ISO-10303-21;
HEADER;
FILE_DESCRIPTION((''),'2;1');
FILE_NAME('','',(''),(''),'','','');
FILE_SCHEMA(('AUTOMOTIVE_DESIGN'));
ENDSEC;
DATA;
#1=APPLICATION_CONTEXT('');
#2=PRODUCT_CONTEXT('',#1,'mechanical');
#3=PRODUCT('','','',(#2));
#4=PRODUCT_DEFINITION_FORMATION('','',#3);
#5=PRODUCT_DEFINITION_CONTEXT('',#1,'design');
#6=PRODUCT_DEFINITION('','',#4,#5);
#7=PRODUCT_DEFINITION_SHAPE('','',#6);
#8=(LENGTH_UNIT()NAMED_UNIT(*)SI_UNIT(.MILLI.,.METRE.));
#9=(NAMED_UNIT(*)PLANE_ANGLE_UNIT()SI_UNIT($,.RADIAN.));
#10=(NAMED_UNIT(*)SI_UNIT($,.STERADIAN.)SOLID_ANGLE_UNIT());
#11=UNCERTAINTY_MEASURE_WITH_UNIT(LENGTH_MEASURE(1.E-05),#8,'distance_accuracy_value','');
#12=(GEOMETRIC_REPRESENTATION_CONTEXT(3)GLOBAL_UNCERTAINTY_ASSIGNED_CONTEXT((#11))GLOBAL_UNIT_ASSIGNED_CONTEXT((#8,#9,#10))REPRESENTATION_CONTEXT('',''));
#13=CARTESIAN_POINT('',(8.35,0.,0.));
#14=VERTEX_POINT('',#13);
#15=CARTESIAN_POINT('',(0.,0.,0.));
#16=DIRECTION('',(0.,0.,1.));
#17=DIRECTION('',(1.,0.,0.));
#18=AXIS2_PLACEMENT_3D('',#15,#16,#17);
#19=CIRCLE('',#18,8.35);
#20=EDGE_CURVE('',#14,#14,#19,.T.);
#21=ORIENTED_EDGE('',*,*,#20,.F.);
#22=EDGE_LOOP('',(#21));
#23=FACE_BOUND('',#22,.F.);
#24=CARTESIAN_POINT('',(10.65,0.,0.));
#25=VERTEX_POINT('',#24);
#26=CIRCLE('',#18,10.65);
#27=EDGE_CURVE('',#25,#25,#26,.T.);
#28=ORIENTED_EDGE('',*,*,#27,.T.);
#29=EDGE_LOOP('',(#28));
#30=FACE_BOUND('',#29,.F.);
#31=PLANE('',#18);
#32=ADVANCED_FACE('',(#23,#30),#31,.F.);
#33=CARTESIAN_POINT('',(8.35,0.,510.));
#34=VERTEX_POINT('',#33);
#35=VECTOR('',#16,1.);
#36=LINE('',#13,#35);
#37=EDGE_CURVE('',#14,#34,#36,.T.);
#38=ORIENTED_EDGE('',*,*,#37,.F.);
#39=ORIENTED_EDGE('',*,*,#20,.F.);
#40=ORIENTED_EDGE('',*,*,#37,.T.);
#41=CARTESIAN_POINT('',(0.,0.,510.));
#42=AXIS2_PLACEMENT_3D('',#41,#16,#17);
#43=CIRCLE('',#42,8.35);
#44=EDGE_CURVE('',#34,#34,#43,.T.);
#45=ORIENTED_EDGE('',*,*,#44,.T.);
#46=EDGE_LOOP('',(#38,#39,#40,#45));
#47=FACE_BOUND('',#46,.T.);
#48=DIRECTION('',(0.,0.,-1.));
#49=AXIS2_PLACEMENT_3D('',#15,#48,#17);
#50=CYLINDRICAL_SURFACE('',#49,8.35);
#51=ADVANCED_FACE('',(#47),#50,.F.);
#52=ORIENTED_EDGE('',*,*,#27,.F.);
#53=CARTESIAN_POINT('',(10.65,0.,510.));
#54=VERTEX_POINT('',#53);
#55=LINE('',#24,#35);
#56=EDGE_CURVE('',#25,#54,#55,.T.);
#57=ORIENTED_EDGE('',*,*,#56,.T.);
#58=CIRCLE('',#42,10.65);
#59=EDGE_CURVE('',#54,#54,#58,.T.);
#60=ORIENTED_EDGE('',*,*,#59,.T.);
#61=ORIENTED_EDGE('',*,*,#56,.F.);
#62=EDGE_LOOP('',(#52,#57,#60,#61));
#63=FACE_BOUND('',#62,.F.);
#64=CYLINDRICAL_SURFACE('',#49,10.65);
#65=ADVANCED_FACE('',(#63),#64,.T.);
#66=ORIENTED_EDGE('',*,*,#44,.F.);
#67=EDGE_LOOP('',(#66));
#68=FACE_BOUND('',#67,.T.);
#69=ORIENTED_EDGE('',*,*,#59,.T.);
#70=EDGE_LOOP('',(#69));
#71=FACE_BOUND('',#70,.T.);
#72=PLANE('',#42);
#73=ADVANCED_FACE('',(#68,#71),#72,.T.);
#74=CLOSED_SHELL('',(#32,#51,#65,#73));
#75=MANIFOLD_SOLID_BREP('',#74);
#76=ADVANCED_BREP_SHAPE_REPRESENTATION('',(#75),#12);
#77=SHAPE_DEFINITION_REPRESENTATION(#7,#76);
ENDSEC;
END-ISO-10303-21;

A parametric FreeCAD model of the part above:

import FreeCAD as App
import Part
import Sketcher

doc = App.newDocument("Part")
params = doc.addObject("Spreadsheet::Sheet", "Params")
for row, (alias, value) in enumerate([
    ("sketch1_diameter", "21.3 mm"),
    ("sketch1_diameter2", "16.7 mm"),
    ("pad1_length", "510 mm"),
], start=1):
    params.set(f"A{row}", alias)
    params.set(f"B{row}", "=" + value)
    params.setAlias(f"B{row}", alias)

body = doc.addObject("PartDesign::Body", "Body")

sketch1 = body.newObject("Sketcher::SketchObject", "Sketch")
sketch1.AttachmentSupport = (doc.getObject("XY_Plane"), [""])
sketch1.MapMode = "FlatFace"
sketch1.addGeometry(Part.Circle(App.Vector(0, 0, 0), App.Vector(0, 0, 1), 11), False)
sketch1.addGeometry(Part.Circle(App.Vector(0, 0, 0), App.Vector(0, 0, 1), 8), False)
sketch1.addConstraint(Sketcher.Constraint("Coincident", 0, 3, -1, 1))
sketch1.addConstraint(Sketcher.Constraint("Coincident", 1, 3, -1, 1))
sketch1.addConstraint(Sketcher.Constraint("Diameter", 0, 21.3))
sketch1.addConstraint(Sketcher.Constraint("Diameter", 1, 16.7))
sketch1.setExpression("Constraints[2]", "Params.sketch1_diameter")
sketch1.setExpression("Constraints[3]", "Params.sketch1_diameter2")
pad1 = body.newObject("PartDesign::Pad", "Pad")
pad1.Profile = sketch1
pad1.setExpression("Length", "Params.pad1_length")

doc.recompute()
